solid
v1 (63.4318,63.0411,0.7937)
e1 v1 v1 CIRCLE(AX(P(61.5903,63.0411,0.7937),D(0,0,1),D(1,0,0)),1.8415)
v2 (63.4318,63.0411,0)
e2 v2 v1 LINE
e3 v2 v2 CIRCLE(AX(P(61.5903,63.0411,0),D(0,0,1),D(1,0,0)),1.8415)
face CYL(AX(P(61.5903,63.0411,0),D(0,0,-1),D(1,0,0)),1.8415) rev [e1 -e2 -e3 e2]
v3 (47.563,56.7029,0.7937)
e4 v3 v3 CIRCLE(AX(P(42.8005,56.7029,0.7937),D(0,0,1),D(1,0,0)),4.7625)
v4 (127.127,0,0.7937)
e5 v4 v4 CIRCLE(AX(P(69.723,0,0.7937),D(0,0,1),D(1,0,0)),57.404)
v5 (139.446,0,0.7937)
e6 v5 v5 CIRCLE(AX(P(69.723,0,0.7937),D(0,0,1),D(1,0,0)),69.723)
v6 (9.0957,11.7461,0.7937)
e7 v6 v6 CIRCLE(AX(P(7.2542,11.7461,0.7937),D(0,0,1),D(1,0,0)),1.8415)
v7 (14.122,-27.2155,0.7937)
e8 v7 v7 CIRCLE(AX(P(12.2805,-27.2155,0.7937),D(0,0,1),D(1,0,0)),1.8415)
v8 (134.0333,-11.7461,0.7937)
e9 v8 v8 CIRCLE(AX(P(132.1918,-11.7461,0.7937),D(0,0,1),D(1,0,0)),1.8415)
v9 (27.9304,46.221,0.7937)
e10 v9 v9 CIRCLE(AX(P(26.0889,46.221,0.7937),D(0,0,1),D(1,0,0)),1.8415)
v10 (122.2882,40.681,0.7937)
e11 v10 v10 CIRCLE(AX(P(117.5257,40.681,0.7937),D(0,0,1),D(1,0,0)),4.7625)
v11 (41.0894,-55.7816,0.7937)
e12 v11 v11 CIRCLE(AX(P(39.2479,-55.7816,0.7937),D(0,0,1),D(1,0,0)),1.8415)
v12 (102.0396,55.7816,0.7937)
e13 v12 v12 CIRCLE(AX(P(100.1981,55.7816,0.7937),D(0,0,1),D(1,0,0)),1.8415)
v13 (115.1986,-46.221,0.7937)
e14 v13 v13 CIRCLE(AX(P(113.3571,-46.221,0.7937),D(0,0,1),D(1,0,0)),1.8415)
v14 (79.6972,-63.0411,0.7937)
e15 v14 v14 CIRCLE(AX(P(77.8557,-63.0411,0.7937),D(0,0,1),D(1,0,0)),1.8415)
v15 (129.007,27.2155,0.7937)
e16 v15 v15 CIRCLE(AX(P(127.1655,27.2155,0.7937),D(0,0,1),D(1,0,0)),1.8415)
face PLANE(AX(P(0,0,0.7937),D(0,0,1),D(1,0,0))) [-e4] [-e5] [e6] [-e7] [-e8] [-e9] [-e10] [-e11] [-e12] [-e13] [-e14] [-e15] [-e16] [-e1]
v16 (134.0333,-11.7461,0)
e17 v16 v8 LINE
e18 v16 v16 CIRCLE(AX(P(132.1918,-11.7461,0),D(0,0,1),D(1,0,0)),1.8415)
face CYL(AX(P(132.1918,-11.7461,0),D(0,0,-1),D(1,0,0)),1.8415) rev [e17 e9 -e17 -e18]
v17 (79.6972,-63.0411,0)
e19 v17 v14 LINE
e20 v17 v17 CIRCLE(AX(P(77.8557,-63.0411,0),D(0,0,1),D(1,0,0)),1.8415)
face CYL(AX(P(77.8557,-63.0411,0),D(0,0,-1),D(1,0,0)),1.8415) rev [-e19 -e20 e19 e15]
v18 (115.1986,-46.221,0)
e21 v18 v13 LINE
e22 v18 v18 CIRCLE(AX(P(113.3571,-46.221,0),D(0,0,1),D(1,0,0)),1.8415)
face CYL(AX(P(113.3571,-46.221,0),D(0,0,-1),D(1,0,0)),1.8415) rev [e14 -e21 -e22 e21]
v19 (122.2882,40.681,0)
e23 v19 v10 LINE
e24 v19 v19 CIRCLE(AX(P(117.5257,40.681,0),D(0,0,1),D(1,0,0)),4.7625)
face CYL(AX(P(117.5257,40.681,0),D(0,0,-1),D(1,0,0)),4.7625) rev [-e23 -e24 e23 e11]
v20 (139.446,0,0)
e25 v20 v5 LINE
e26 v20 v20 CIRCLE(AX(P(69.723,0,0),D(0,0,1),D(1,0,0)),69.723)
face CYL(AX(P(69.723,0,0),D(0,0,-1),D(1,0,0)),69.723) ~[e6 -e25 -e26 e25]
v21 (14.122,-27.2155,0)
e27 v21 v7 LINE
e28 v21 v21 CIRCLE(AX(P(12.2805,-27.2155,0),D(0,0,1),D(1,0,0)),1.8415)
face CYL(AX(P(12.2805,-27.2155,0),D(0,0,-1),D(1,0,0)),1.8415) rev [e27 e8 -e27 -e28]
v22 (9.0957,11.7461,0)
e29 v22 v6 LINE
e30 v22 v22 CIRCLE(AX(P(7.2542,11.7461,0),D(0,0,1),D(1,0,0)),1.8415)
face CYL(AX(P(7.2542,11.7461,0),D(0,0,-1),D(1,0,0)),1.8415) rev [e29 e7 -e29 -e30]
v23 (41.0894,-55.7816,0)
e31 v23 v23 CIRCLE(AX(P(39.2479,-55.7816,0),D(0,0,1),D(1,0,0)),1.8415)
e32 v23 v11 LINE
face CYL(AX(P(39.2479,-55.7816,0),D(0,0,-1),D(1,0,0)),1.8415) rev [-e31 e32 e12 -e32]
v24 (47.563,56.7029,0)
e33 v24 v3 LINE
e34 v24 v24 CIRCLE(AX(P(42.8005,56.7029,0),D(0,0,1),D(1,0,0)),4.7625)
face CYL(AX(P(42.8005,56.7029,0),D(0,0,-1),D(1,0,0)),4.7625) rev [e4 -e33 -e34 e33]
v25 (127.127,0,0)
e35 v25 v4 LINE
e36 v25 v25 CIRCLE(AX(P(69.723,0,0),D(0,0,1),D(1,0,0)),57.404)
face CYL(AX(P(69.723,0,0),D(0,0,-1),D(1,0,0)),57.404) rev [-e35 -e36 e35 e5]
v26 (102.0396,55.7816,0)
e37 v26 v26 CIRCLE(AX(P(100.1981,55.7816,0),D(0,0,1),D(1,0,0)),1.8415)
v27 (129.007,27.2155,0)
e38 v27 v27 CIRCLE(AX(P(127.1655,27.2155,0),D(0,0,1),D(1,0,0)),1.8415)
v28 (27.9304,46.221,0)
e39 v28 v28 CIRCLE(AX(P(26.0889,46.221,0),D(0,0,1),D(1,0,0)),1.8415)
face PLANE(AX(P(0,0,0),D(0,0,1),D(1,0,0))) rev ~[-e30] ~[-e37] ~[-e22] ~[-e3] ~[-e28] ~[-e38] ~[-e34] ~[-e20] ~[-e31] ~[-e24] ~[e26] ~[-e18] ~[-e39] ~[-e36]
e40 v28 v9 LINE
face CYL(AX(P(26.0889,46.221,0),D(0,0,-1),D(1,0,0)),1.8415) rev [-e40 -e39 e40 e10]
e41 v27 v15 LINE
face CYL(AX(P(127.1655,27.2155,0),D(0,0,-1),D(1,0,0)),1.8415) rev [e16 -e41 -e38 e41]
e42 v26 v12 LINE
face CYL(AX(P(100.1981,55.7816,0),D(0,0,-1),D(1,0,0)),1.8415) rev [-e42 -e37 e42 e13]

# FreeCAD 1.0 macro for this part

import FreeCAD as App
import Part
import Sketcher

V = App.Vector
Q = App.Units.Quantity

doc = App.newDocument("Part")
body = doc.addObject("PartDesign::Body", "Body")

sketch1 = doc.addObject("Sketcher::SketchObject", "Sketch")
body.addObject(sketch1)
sketch1.AttachmentSupport = (doc.XY_Plane, [""])
sketch1.MapMode = "FlatFace"
sketch1.addGeometry([
    Part.Circle(V(69.7, 0, 0), V(0, 0, 1), 69.7),
    Part.Circle(V(39.2, -55.8, 0), V(0, 0, 1), 1.8),
    Part.Circle(V(12.3, -27.2, 0), V(0, 0, 1), 1.8),
    Part.Circle(V(77.9, -63, 0), V(0, 0, 1), 1.8),
    Part.Circle(V(113.4, -46.2, 0), V(0, 0, 1), 1.8),
    Part.Circle(V(132.2, -11.7, 0), V(0, 0, 1), 1.8),
    Part.Circle(V(7.3, 11.7, 0), V(0, 0, 1), 1.8),
    Part.Circle(V(26.1, 46.2, 0), V(0, 0, 1), 1.8),
    Part.Circle(V(42.8, 56.7, 0), V(0, 0, 1), 4.8),
    Part.Circle(V(61.6, 63, 0), V(0, 0, 1), 1.8),
    Part.Circle(V(69.7, 0, 0), V(0, 0, 1), 57.4),
    Part.Circle(V(127.2, 27.2, 0), V(0, 0, 1), 1.8),
    Part.Circle(V(100.2, 55.8, 0), V(0, 0, 1), 1.8),
    Part.Circle(V(117.5, 40.7, 0), V(0, 0, 1), 4.8),
], False)
sketch1.addConstraint([
    Sketcher.Constraint("Coincident", 10, 3, 0, 3),
    Sketcher.Constraint("Equal", 1, 2),
    Sketcher.Constraint("Equal", 2, 3),
    Sketcher.Constraint("Equal", 3, 4),
    Sketcher.Constraint("Equal", 4, 5),
    Sketcher.Constraint("Equal", 5, 6),
    Sketcher.Constraint("Equal", 6, 7),
    Sketcher.Constraint("Equal", 7, 9),
    Sketcher.Constraint("Equal", 9, 11),
    Sketcher.Constraint("Equal", 11, 12),
    Sketcher.Constraint("Equal", 8, 13),
    Sketcher.Constraint("PointOnObject", 0, 3, -1),
    Sketcher.Constraint("Diameter", 0, Q("5.49 in")),
    Sketcher.Constraint("Diameter", 10, Q("4.52 in")),
    Sketcher.Constraint("Diameter", 1, Q("0.145 in")),
    Sketcher.Constraint("Diameter", 8, Q("0.375 in")),
    Sketcher.Constraint("DistanceX", 1, 3, 3, 3, Q("1.52 in")),
    Sketcher.Constraint("DistanceX", 9, 3, 12, 3, Q("1.52 in")),
    Sketcher.Constraint("DistanceX", -1, 1, 0, 3, Q("2.745 in")),
    Sketcher.Constraint("DistanceX", -1, 1, 13, 3, Q("4.627 in")),
    Sketcher.Constraint("DistanceX", -1, 1, 1, 3, Q("1.5452 in")),
    Sketcher.Constraint("DistanceX", -1, 1, 5, 3, Q("5.2044 in")),
    Sketcher.Constraint("DistanceX", -1, 1, 6, 3, Q("0.2856 in")),
    Sketcher.Constraint("DistanceY", -1, 1, 8, 3, Q("2.2324 in")),
    Sketcher.Constraint("DistanceX", -1, 1, 12, 3, Q("3.9448 in")),
    Sketcher.Constraint("DistanceX", 2, 3, 1, 3, Q("1.0617 in")),
    Sketcher.Constraint("DistanceY", 3, 3, 1, 3, Q("0.2858 in")),
    Sketcher.Constraint("DistanceX", 3, 3, 4, 3, Q("1.3977 in")),
    Sketcher.Constraint("DistanceY", 3, 3, 4, 3, Q("0.6622 in")),
    Sketcher.Constraint("DistanceY", 3, 3, 5, 3, Q("2.0195 in")),
    Sketcher.Constraint("DistanceY", 2, 3, 7, 3, Q("2.8912 in")),
    Sketcher.Constraint("DistanceX", 7, 3, 9, 3, Q("1.3977 in")),
    Sketcher.Constraint("DistanceY", 7, 3, 9, 3, Q("0.6622 in")),
    Sketcher.Constraint("DistanceY", 6, 3, 9, 3, Q("2.0195 in")),
    Sketcher.Constraint("DistanceX", 9, 3, 11, 3, Q("2.5817 in")),
    Sketcher.Constraint("DistanceY", 4, 3, 11, 3, Q("2.8912 in")),
    Sketcher.Constraint("DistanceY", 12, 3, 9, 3, Q("0.2858 in")),
    Sketcher.Constraint("DistanceY", 13, 3, 12, 3, Q("0.5945 in")),
    Sketcher.Constraint("DistanceY", 1, 3, -1, 1, Q("55.7816 mm")),
    Sketcher.Constraint("DistanceY", 2, 3, -1, 1, Q("27.2155 mm")),
    Sketcher.Constraint("DistanceX", -1, 1, 8, 3, Q("42.8005 mm")),
])
pad1 = doc.addObject("PartDesign::Pad", "Pad")
body.addObject(pad1)
pad1.Profile = sketch1
pad1.Length = Q("0.031248 in")

doc.recompute()
